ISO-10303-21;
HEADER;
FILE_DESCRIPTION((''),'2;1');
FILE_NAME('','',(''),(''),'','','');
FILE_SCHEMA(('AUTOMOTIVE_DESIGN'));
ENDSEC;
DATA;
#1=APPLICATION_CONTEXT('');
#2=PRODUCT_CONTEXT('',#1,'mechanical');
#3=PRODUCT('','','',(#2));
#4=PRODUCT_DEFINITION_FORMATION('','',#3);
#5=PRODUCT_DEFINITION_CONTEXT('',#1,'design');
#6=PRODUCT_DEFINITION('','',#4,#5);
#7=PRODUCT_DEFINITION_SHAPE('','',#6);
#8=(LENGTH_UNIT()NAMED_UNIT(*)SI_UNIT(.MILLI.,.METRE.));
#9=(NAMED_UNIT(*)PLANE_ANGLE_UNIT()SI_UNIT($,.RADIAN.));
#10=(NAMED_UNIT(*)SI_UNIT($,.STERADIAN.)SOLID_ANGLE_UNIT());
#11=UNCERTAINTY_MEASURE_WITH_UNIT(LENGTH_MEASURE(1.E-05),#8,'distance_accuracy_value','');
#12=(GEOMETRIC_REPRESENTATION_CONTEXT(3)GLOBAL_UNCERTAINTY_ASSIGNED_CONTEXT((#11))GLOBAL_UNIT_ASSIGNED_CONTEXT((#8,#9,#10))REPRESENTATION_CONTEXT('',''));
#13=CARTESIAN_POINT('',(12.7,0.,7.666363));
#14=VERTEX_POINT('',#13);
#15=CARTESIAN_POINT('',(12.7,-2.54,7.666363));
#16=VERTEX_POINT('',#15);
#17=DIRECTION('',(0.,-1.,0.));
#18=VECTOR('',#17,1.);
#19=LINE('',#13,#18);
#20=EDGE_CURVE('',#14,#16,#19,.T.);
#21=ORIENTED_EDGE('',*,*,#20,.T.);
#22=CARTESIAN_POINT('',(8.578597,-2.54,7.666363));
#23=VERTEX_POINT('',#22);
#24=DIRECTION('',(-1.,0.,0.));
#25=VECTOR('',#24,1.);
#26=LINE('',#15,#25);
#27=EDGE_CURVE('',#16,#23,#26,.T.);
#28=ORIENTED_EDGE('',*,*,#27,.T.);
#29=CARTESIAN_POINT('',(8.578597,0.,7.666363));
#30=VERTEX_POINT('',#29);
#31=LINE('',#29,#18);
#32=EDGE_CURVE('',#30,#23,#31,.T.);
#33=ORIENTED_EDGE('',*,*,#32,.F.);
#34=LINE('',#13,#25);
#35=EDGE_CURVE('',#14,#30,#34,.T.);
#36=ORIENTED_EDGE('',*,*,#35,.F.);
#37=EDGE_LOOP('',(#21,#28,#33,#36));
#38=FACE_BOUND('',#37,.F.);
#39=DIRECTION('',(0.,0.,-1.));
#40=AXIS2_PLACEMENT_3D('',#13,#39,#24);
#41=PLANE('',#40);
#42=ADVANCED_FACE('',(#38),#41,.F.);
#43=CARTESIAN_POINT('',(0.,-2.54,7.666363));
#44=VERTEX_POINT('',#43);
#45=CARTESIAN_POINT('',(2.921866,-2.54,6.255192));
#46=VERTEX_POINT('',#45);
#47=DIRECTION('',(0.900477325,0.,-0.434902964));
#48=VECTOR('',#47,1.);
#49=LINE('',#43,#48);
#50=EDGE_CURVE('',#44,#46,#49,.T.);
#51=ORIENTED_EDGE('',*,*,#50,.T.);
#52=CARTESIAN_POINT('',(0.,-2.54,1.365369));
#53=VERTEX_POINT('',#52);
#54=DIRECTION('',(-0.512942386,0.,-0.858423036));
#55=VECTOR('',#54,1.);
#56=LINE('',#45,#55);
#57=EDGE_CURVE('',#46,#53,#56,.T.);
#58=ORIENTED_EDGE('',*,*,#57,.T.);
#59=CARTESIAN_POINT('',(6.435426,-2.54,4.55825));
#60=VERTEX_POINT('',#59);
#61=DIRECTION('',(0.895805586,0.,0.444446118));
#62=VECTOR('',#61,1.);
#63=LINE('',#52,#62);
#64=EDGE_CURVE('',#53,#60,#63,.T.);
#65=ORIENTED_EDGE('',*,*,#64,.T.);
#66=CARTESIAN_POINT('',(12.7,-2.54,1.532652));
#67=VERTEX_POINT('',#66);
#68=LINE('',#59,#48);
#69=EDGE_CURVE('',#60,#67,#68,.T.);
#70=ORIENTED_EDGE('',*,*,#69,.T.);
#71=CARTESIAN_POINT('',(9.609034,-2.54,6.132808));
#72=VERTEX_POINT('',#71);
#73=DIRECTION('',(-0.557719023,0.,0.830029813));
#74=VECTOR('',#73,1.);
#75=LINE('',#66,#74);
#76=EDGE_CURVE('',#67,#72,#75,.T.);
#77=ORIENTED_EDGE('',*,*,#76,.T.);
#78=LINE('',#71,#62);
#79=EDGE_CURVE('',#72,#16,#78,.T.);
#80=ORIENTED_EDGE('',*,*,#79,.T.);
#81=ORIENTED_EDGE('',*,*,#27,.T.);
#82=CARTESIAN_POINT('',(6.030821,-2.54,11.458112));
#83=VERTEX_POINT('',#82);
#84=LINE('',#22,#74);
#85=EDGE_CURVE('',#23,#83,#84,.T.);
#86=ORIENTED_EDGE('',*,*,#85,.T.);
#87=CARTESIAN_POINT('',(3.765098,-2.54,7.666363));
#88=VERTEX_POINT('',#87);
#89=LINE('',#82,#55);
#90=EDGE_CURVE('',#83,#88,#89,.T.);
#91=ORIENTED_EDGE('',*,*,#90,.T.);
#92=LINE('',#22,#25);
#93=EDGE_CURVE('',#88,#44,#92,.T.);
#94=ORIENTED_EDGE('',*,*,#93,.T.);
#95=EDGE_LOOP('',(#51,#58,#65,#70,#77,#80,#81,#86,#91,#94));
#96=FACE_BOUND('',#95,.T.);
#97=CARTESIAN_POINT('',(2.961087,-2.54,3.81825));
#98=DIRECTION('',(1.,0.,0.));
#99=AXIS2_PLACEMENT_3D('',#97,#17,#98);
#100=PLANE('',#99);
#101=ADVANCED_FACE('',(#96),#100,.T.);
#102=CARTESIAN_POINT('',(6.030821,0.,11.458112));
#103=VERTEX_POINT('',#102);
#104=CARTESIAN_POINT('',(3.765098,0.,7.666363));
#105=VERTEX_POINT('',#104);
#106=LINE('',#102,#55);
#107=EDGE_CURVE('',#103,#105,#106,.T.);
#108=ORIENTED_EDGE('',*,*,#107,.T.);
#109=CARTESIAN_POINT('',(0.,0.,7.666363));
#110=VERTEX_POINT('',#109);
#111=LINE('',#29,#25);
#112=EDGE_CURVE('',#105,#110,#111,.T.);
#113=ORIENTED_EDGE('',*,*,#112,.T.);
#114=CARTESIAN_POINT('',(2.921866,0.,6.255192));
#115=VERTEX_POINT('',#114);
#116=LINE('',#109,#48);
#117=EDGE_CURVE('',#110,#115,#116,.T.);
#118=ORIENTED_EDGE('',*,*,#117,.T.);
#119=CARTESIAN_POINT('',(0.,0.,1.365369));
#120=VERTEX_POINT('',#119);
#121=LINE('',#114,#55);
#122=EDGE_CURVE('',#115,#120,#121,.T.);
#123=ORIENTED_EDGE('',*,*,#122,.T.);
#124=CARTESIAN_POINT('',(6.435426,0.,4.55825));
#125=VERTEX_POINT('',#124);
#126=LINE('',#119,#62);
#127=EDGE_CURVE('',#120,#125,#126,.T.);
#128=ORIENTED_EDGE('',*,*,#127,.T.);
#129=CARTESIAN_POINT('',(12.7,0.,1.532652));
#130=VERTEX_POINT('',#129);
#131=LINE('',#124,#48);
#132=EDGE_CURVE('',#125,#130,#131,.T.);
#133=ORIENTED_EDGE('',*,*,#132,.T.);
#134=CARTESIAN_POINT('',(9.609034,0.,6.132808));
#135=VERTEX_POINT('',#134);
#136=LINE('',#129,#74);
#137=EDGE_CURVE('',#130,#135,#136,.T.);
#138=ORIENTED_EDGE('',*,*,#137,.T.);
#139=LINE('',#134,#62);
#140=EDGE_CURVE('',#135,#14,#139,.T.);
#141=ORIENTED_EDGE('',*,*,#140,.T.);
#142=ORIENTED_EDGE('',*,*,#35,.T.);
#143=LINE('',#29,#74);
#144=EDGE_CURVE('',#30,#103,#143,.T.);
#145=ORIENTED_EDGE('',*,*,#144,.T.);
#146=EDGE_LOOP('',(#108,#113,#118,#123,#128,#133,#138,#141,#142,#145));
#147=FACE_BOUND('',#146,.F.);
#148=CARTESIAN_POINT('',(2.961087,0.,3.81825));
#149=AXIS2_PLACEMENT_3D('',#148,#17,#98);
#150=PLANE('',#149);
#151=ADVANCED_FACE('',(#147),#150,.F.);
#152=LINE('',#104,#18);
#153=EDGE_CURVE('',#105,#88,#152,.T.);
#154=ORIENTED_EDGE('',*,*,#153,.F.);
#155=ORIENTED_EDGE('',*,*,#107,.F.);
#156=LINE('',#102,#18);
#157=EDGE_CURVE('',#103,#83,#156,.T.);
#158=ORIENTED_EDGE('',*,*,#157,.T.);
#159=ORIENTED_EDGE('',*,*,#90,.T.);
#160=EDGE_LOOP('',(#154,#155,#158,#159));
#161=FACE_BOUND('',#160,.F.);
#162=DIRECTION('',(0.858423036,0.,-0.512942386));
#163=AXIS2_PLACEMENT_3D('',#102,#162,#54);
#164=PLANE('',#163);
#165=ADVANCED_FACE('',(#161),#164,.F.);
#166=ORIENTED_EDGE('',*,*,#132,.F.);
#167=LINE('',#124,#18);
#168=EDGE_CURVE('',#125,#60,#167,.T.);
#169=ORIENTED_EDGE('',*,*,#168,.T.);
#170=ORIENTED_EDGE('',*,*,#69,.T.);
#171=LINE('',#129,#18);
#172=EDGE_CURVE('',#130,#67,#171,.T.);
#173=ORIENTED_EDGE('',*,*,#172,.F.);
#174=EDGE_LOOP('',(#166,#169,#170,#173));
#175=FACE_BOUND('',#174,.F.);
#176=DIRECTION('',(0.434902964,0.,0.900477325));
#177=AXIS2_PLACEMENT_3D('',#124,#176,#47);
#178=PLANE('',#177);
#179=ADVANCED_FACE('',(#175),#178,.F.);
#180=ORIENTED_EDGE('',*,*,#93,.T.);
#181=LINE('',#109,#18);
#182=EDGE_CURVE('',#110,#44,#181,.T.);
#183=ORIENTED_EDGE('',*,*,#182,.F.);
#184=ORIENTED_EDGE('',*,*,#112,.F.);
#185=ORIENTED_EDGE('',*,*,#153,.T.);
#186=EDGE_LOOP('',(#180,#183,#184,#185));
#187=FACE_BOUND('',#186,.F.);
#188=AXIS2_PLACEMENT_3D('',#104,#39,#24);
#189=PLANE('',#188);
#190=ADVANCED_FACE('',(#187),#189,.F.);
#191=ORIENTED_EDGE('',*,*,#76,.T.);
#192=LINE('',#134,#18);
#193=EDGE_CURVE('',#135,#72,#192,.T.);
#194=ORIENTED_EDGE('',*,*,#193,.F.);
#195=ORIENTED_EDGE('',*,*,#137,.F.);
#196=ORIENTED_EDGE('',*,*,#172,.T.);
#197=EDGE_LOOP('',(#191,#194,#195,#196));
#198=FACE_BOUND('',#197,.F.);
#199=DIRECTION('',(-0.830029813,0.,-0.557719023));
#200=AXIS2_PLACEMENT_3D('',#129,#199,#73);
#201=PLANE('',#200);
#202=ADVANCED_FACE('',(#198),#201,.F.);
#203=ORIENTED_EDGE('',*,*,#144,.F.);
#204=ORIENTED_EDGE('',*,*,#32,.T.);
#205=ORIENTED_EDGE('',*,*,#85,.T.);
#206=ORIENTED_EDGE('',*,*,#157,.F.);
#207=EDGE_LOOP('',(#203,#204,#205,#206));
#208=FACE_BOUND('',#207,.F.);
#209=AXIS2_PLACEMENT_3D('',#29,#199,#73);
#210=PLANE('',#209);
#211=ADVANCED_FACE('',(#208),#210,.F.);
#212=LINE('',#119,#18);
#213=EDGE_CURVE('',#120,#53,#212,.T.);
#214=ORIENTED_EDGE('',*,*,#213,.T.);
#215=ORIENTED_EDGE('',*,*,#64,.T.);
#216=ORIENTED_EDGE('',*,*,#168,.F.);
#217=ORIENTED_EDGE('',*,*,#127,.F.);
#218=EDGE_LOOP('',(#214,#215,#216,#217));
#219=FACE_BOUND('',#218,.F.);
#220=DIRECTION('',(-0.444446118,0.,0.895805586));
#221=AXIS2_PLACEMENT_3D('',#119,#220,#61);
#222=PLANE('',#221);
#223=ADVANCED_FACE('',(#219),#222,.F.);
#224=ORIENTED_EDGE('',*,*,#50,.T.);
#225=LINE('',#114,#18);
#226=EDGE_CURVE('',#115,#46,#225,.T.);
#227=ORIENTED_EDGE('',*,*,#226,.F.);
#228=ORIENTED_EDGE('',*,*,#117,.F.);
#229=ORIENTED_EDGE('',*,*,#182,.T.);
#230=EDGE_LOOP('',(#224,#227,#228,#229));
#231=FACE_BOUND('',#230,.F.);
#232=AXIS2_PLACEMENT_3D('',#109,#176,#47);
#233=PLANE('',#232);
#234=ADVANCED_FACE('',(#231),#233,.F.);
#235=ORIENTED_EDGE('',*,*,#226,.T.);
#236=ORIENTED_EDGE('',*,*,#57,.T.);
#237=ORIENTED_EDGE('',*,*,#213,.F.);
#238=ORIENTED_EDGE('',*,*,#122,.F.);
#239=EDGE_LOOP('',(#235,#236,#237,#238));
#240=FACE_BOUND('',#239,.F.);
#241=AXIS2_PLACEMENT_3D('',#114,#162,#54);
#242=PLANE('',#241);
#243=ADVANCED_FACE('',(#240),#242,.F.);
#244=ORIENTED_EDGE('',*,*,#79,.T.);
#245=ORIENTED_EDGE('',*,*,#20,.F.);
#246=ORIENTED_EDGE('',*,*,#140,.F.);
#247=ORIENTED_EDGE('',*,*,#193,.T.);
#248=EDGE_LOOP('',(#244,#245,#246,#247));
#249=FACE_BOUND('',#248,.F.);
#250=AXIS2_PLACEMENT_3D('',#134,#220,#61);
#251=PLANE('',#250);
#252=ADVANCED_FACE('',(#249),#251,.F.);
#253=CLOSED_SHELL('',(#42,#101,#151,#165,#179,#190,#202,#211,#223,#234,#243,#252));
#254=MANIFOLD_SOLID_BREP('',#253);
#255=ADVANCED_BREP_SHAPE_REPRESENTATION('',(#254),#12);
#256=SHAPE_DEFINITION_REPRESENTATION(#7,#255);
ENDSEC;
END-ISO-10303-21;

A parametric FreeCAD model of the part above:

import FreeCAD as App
import Part
import Sketcher
Q = App.Units.Quantity


def add_polygon(sketch, points):
    """Adds a closed chain of lines whose ends are joined by coincident constraints."""
    first, n = sketch.GeometryCount, len(points)
    for a, b in zip(points, points[1:] + points[:1]):
        sketch.addGeometry(Part.LineSegment(App.Vector(*a, 0), App.Vector(*b, 0)), False)
    for i in range(n):
        sketch.addConstraint(Sketcher.Constraint("Coincident", first + i, 2, first + (i + 1) % n, 1))

doc = App.newDocument("Part")
params = doc.addObject("Spreadsheet::Sheet", "Params")
for row, (alias, value) in enumerate([
    ("pad1_length", "0.1 in"),
], start=1):
    params.set(f"A{row}", alias)
    params.set(f"B{row}", "=" + value)
    params.setAlias(f"B{row}", alias)

body = doc.addObject("PartDesign::Body", "Body")

sketch1 = body.newObject("Sketcher::SketchObject", "Sketch")
sketch1.AttachmentSupport = (doc.getObject("XZ_Plane"), [""])
sketch1.MapMode = "FlatFace"
add_polygon(sketch1, [(2.9, 6.3), (0, 1.4), (6.4, 4.6), (12.7, 1.5), (9.6, 6.1), (12.7, 7.7), (8.6, 7.7), (6, 11.5), (3.8, 7.7), (0, 7.7)])
sketch1.addConstraint(Sketcher.Constraint("Horizontal", 5))
sketch1.addConstraint(Sketcher.Constraint("Horizontal", 8))
sketch1.addConstraint(Sketcher.Constraint("PointOnObject", 0, 2, -2))
sketch1.addConstraint(Sketcher.Constraint("PointOnObject", 8, 2, -2))
sketch1.addConstraint(Sketcher.Constraint("Parallel", 1, 4))
sketch1.addConstraint(Sketcher.Constraint("Parallel", 3, 6))
sketch1.addConstraint(Sketcher.Constraint("Parallel", 0, 7))
sketch1.addConstraint(Sketcher.Constraint("Parallel", 2, 9))
sketch1.addConstraint(Sketcher.Constraint("Horizontal", 5, 2, 7, 2))
sketch1.addConstraint(Sketcher.Constraint("Vertical", 2, 2, 4, 2))
sketch1.addConstraint(Sketcher.Constraint("DistanceX", -1, 1, 2, 2, Q("0.5 in")))
sketch1.addConstraint(Sketcher.Constraint("DistanceX", 8, 2, 8, 1, 3.765098))
sketch1.addConstraint(Sketcher.Constraint("DistanceX", 7, 2, 5, 2, 4.813499))
sketch1.addConstraint(Sketcher.Constraint("Distance", 2, 6.956948))
sketch1.addConstraint(Sketcher.Constraint("Distance", 7, 4.417109))
sketch1.addConstraint(Sketcher.Constraint("DistanceY", -1, 1, 0, 2, 1.365369))
sketch1.addConstraint(Sketcher.Constraint("DistanceY", -1, 1, 1, 2, 4.55825))
sketch1.addConstraint(Sketcher.Constraint("DistanceX", -1, 1, 6, 2, 6.030821))
sketch1.addConstraint(Sketcher.Constraint("DistanceY", -1, 1, 6, 2, 11.458112))
sketch1.addConstraint(Sketcher.Constraint("DistanceY", -1, 1, 9, 2, 6.255192))
pad1 = body.newObject("PartDesign::Pad", "Pad")
pad1.Profile = sketch1
pad1.setExpression("Length", "Params.pad1_length")

doc.recompute()
